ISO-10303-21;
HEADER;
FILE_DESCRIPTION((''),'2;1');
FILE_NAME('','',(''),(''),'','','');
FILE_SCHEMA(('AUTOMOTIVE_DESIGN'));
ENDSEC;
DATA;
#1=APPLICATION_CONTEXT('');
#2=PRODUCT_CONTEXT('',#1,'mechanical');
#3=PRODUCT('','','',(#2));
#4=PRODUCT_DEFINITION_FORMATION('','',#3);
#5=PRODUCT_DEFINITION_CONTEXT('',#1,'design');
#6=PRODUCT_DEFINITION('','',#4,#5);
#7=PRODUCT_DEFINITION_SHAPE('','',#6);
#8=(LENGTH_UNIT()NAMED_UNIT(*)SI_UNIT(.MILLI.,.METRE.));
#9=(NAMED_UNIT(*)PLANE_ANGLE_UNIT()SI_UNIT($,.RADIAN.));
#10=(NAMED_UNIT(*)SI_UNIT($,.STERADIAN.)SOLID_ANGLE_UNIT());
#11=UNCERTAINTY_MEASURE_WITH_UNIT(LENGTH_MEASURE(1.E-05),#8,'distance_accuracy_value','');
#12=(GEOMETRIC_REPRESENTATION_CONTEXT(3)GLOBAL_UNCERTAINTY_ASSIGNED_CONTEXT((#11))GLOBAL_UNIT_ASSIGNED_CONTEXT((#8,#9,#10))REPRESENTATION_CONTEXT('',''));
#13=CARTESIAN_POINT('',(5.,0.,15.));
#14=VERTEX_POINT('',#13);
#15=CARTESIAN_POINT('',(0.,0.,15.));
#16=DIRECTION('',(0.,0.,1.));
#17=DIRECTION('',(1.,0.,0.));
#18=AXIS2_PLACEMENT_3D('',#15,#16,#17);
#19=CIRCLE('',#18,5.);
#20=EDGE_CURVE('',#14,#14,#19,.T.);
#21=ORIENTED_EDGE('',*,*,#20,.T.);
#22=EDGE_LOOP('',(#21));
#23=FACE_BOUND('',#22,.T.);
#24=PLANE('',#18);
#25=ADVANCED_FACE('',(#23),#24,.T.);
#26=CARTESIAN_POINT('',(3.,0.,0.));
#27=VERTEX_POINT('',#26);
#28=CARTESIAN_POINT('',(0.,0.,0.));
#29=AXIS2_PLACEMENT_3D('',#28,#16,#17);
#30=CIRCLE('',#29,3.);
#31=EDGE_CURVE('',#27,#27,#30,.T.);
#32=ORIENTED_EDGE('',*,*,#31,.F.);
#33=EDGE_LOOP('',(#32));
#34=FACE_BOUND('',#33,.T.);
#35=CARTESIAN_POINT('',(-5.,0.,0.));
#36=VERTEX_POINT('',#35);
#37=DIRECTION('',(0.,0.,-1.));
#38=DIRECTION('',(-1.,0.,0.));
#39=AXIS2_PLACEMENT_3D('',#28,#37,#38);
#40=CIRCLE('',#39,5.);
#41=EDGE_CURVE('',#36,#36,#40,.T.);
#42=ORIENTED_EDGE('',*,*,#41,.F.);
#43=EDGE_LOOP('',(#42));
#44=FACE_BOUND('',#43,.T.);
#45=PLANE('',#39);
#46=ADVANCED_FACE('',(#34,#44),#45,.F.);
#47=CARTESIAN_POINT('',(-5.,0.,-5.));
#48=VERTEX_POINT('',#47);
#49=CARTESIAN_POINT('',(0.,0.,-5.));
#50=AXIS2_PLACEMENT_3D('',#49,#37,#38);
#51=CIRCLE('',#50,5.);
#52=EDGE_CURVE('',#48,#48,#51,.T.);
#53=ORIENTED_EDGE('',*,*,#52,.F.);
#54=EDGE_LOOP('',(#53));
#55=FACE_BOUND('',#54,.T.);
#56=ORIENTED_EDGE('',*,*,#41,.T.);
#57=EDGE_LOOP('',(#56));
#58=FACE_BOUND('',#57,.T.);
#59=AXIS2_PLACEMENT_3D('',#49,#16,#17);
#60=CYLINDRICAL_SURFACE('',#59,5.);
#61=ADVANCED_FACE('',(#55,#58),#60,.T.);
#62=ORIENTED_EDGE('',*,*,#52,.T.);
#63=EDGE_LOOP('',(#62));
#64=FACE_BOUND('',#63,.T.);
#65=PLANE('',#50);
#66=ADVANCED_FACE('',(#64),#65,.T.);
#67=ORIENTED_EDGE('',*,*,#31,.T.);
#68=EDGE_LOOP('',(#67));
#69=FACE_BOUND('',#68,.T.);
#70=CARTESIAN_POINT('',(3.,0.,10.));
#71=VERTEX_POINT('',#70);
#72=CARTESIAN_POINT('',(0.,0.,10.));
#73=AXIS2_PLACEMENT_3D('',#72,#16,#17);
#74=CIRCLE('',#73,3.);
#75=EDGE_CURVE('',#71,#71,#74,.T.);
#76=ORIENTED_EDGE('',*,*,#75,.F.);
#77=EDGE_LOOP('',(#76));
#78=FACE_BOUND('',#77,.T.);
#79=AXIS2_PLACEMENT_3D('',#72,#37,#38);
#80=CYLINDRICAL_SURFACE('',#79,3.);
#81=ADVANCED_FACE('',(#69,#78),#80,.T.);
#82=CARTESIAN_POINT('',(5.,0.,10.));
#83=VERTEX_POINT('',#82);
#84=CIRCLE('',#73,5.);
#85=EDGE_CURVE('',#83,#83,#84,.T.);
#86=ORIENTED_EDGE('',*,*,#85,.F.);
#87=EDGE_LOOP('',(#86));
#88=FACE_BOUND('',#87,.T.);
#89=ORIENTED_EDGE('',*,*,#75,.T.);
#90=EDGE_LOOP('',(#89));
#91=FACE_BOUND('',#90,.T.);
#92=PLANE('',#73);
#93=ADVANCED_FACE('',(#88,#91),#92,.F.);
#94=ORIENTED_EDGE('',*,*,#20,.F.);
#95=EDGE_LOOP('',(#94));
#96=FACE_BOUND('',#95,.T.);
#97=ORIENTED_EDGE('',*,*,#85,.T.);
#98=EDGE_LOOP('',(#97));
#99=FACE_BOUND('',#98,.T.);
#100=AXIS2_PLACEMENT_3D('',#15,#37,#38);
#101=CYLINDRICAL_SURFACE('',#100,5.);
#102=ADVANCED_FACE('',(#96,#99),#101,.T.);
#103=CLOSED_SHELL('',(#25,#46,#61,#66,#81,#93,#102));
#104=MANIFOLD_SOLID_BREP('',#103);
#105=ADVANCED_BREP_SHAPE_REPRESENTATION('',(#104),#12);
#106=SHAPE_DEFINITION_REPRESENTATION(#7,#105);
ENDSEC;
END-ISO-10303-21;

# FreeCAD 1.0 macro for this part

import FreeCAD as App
import Part
import Sketcher

V = App.Vector

doc = App.newDocument("Part")
body = doc.addObject("PartDesign::Body", "Body")

sketch1 = body.newObject("Sketcher::SketchObject", "Sketch")
sketch1.AttachmentSupport = (doc.getObject("XY_Plane"), [""])
sketch1.MapMode = "FlatFace"
sketch1.addGeometry(Part.Circle(V(0, 0, 0), V(0, 0, 1), 3), False)
sketch1.addConstraint(Sketcher.Constraint("Coincident", 0, 3, -1, 1))
sketch1.addConstraint(Sketcher.Constraint("Diameter", 0, 6.0))
pad1 = body.newObject("PartDesign::Pad", "Pad")
pad1.Profile = sketch1
pad1.Length = 10

sketch2 = body.newObject("Sketcher::SketchObject", "Sketch001")
sketch2.AttachmentSupport = (doc.getObject("XY_Plane"), [""])
sketch2.MapMode = "FlatFace"
sketch2.AttachmentOffset = App.Placement(V(0, 0, 10), App.Rotation())
sketch2.addGeometry(Part.Circle(V(0, 0, 0), V(0, 0, 1), 5), False)
sketch2.addConstraint(Sketcher.Constraint("Coincident", 0, 3, -1, 1))
sketch2.addConstraint(Sketcher.Constraint("Diameter", 0, 10.0))
pad2 = body.newObject("PartDesign::Pad", "Pad001")
pad2.Profile = sketch2
pad2.Length = 5

sketch3 = body.newObject("Sketcher::SketchObject", "Sketch002")
sketch3.AttachmentSupport = (doc.getObject("XY_Plane"), [""])
sketch3.MapMode = "FlatFace"
sketch3.AttachmentOffset = App.Placement(V(0, 0, -5), App.Rotation())
sketch3.addGeometry(Part.Circle(V(0, 0, 0), V(0, 0, 1), 5), False)
sketch3.addConstraint(Sketcher.Constraint("Coincident", 0, 3, -1, 1))
sketch3.addConstraint(Sketcher.Constraint("Diameter", 0, 10.0))
pad3 = body.newObject("PartDesign::Pad", "Pad002")
pad3.Profile = sketch3
pad3.Length = 5

doc.recompute()
